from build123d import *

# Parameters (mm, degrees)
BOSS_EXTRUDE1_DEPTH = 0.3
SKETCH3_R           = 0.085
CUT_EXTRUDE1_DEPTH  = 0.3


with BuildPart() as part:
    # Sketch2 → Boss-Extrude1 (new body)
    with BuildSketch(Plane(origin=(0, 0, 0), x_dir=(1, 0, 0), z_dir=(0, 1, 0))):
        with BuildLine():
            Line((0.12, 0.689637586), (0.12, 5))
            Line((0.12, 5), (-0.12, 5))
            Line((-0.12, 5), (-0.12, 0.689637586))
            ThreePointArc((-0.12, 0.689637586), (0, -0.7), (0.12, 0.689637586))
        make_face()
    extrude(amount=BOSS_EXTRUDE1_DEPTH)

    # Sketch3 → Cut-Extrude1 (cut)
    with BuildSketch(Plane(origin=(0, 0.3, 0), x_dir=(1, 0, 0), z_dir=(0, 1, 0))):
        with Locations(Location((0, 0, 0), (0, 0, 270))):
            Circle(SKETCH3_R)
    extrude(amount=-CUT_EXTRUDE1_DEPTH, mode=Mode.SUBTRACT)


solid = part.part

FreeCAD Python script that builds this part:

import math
import FreeCAD as App
import Part
import Sketcher

V = App.Vector
Q = App.Units.Quantity

doc = App.newDocument("Part")
body = doc.addObject("PartDesign::Body", "Body")

# Sketch on XZ plane
sketch1 = doc.addObject("Sketcher::SketchObject", "Sketch")
body.addObject(sketch1)
sketch1.AttachmentSupport = (doc.XZ_Plane, [""])
sketch1.MapMode = "FlatFace"
sketch1.addGeometry([
    Part.LineSegment(V(0.12, -0.69, 0), V(0.12, -5, 0)),
    Part.LineSegment(V(0.12, -5, 0), V(-0.12, -5, 0)),
    Part.LineSegment(V(-0.12, -5, 0), V(-0.12, -0.69, 0)),
    Part.ArcOfCircle(Part.Circle(V(0, 0, 0), V(0, 0, 1), 0.7), math.radians(-80), math.radians(260)),
], False)
sketch1.addConstraint([
    Sketcher.Constraint("Coincident", 0, 2, 1, 1),
    Sketcher.Constraint("Coincident", 1, 2, 2, 1),
    Sketcher.Constraint("Coincident", 2, 2, 3, 2),
    Sketcher.Constraint("Coincident", 3, 1, 0, 1),
    Sketcher.Constraint("Vertical", 0),
    Sketcher.Constraint("Horizontal", 1),
    Sketcher.Constraint("Vertical", 2),
    Sketcher.Constraint("Coincident", 3, 3, -1, 1),
    Sketcher.Constraint("Horizontal", 2, 2, 3, 1),
    Sketcher.Constraint("Radius", 3, Q("0.7 mm")),
    Sketcher.Constraint("DistanceY", 0, 2, -1, 1, Q("5 mm")),
    Sketcher.Constraint("DistanceX", 1, 2, 1, 1, Q("0.24 mm")),
])
pad1 = doc.addObject("PartDesign::Pad", "Pad")
body.addObject(pad1)
pad1.Profile = sketch1
pad1.Length = 0.3
pad1.Reversed = True

# Sketch on XZ plane
sketch2 = doc.addObject("Sketcher::SketchObject", "Sketch001")
body.addObject(sketch2)
sketch2.AttachmentSupport = (doc.XZ_Plane, [""])
sketch2.MapMode = "FlatFace"
sketch2.AttachmentOffset = App.Placement(V(0, 0, -0.3), App.Rotation())
sketch2.addGeometry(Part.Circle(V(0, 0, 0), V(0, 0, 1), 0.09), False)
sketch2.addConstraint([
    Sketcher.Constraint("Coincident", 0, 3, -1, 1),
    Sketcher.Constraint("Diameter", 0, Q("0.17 mm")),
])
pocket1 = doc.addObject("PartDesign::Pocket", "Pocket")
body.addObject(pocket1)
pocket1.Profile = sketch2
pocket1.Length = 0.3
pocket1.Reversed = True

doc.recompute()
